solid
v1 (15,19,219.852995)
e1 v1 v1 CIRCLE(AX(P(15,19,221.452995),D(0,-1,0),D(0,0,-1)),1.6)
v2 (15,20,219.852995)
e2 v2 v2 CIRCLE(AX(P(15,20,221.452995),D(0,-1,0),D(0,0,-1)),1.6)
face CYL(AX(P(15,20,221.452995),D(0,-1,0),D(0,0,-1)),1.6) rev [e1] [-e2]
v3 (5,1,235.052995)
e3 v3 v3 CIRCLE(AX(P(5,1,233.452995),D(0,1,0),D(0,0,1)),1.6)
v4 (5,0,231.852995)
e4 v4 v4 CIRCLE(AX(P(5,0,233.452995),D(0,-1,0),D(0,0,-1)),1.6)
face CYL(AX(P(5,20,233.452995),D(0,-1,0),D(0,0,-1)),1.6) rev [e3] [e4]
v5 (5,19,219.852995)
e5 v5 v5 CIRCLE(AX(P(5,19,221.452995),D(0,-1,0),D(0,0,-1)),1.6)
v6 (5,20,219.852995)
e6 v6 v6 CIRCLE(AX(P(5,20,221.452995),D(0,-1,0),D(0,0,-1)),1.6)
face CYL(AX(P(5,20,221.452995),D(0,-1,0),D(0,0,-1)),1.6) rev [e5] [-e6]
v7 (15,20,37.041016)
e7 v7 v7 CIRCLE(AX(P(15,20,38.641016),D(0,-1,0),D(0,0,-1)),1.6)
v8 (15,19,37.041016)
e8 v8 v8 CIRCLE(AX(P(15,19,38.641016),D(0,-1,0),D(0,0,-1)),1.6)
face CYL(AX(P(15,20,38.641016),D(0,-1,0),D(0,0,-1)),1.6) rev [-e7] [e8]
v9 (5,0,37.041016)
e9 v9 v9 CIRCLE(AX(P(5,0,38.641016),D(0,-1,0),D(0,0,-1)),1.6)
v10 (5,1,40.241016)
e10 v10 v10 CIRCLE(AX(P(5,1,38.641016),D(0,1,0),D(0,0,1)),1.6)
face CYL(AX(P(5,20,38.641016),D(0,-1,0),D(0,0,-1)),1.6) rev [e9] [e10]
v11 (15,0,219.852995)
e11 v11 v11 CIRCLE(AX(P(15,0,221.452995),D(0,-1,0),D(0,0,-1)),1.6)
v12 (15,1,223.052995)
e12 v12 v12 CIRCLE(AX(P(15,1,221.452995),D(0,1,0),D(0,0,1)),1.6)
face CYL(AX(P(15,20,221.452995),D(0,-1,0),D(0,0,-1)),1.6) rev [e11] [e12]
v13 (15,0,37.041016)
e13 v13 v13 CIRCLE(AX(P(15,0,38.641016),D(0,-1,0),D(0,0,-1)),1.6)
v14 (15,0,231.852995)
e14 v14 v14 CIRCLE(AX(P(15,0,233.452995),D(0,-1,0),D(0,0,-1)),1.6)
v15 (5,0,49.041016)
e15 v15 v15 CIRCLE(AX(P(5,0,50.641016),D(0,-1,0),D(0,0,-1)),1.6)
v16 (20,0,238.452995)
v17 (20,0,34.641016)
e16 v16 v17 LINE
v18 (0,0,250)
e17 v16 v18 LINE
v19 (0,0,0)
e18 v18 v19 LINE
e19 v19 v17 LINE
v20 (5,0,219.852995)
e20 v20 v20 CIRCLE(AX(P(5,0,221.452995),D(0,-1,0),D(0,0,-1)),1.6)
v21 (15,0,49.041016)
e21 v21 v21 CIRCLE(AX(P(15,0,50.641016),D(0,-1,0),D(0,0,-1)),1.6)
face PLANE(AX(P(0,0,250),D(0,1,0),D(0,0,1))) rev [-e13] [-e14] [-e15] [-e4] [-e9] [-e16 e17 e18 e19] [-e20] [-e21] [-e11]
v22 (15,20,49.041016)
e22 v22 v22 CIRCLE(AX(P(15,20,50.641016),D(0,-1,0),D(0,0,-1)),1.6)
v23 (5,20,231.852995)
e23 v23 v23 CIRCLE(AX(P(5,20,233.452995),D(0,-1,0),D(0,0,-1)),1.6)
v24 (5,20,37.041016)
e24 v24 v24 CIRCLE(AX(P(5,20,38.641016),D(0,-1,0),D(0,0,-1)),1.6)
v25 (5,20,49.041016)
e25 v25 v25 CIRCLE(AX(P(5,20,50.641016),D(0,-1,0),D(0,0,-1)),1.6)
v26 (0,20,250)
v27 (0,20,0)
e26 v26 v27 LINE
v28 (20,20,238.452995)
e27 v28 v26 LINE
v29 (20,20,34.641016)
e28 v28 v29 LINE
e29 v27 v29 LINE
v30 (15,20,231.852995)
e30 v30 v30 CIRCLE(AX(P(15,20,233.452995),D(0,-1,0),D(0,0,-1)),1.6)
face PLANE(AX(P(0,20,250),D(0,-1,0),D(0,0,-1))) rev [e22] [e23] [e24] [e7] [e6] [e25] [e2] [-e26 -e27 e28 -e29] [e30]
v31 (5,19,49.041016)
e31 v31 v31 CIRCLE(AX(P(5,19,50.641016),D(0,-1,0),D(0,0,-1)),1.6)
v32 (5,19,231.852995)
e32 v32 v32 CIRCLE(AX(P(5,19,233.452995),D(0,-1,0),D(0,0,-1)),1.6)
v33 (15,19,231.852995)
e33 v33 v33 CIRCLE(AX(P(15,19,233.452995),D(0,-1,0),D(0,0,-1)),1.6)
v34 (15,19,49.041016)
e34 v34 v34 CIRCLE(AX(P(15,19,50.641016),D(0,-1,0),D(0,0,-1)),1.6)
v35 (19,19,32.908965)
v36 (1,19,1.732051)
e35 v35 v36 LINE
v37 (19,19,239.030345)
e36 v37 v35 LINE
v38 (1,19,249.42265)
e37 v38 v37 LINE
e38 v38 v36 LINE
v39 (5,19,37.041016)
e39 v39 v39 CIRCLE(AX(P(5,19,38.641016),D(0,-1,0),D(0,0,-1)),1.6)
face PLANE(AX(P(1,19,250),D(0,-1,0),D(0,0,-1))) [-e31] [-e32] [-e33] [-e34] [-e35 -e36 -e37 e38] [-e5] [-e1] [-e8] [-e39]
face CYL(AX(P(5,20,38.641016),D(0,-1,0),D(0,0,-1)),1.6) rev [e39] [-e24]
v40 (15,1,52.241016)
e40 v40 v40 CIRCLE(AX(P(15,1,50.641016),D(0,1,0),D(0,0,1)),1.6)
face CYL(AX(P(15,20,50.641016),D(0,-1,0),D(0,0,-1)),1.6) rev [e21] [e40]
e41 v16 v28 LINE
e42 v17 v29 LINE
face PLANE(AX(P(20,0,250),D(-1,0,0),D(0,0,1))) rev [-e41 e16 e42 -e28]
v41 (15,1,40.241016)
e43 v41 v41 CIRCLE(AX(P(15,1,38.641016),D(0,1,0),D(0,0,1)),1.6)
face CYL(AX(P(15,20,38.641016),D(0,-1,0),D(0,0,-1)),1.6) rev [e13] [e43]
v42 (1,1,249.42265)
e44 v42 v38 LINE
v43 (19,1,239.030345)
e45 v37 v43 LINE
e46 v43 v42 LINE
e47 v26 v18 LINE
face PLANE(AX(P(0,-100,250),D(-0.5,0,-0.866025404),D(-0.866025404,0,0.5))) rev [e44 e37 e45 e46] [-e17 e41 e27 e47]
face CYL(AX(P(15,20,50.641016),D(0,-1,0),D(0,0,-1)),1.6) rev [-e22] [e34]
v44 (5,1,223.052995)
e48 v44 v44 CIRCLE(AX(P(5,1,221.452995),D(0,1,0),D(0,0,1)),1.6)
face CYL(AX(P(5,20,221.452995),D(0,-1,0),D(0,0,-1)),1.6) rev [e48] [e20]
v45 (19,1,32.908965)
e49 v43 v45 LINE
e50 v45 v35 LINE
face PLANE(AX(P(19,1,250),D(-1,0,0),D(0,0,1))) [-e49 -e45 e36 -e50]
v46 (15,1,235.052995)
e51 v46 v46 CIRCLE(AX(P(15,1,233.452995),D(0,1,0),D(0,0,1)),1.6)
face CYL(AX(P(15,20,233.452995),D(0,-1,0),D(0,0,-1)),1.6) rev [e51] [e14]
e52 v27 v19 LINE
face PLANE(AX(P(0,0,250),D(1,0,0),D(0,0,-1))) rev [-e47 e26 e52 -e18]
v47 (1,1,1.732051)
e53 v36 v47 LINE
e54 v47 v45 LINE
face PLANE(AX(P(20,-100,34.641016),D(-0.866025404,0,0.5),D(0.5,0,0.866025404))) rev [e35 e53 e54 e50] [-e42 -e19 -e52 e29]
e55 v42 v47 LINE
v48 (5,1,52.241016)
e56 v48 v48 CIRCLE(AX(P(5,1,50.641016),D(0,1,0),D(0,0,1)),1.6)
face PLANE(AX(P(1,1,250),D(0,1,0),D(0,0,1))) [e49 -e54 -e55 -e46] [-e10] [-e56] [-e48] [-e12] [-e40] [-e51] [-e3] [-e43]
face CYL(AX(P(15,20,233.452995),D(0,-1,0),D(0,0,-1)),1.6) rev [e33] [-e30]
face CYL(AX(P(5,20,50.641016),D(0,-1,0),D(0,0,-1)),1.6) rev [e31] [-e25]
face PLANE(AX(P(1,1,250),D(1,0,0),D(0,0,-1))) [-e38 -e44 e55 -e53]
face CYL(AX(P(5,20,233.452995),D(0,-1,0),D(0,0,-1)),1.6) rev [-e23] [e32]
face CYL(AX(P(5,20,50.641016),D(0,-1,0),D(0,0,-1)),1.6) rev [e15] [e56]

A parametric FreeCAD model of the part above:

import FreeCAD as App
import Part
import Sketcher
Q = App.Units.Quantity

doc = App.newDocument("Part")
body = doc.addObject("PartDesign::Body", "Body")

sketch1 = body.newObject("Sketcher::SketchObject", "Sketch")
sketch1.AttachmentSupport = (doc.getObject("XY_Plane"), [""])
sketch1.MapMode = "FlatFace"
sketch1.addGeometry([
    Part.LineSegment(App.Vector(0, 20, 0), App.Vector(0, 0, 0)),
    Part.LineSegment(App.Vector(0, 0, 0), App.Vector(20, 0, 0)),
    Part.LineSegment(App.Vector(20, 0, 0), App.Vector(20, 20, 0)),
    Part.LineSegment(App.Vector(20, 20, 0), App.Vector(0, 20, 0)),
    Part.LineSegment(App.Vector(19, 1, 0), App.Vector(1, 1, 0)),
    Part.LineSegment(App.Vector(1, 1, 0), App.Vector(1, 19, 0)),
    Part.LineSegment(App.Vector(1, 19, 0), App.Vector(19, 19, 0)),
    Part.LineSegment(App.Vector(19, 19, 0), App.Vector(19, 1, 0)),
], False)
sketch1.addConstraint([
    Sketcher.Constraint("Coincident", 0, 2, 1, 1),
    Sketcher.Constraint("Coincident", 1, 2, 2, 1),
    Sketcher.Constraint("Coincident", 2, 2, 3, 1),
    Sketcher.Constraint("Coincident", 3, 2, 0, 1),
    Sketcher.Constraint("Coincident", 4, 2, 5, 1),
    Sketcher.Constraint("Coincident", 5, 2, 6, 1),
    Sketcher.Constraint("Coincident", 6, 2, 7, 1),
    Sketcher.Constraint("Coincident", 7, 2, 4, 1),
    Sketcher.Constraint("Vertical", 0),
    Sketcher.Constraint("Horizontal", 1),
    Sketcher.Constraint("Vertical", 2),
    Sketcher.Constraint("Horizontal", 3),
    Sketcher.Constraint("Horizontal", 4),
    Sketcher.Constraint("Vertical", 5),
    Sketcher.Constraint("Horizontal", 6),
    Sketcher.Constraint("Vertical", 7),
    Sketcher.Constraint("Coincident", 0, 2, -1, 1),
    Sketcher.Constraint("Equal", 3, 0),
    Sketcher.Constraint("Equal", 6, 5),
    Sketcher.Constraint("DistanceX", 1, 1, 1, 2, Q("20 mm")),
    Sketcher.Constraint("DistanceX", 4, 2, 4, 1, Q("18 mm")),
    Sketcher.Constraint("DistanceX", -1, 1, 4, 2, Q("1 mm")),
    Sketcher.Constraint("DistanceY", -1, 1, 4, 2, Q("1 mm")),
])
pad1 = body.newObject("PartDesign::Pad", "Pad")
pad1.Profile = sketch1
pad1.Length = 250

sketch2 = body.newObject("Sketcher::SketchObject", "Sketch001")
sketch2.AttachmentSupport = (doc.getObject("XZ_Plane"), [""])
sketch2.MapMode = "FlatFace"
sketch2.AttachmentOffset = App.Placement(App.Vector(0, 0, -20), App.Rotation())
sketch2.addGeometry([
    Part.LineSegment(App.Vector(20, 0, 0), App.Vector(0, 0, 0)),
    Part.LineSegment(App.Vector(0, 0, 0), App.Vector(20, 35, 0)),
    Part.LineSegment(App.Vector(20, 35, 0), App.Vector(20, 0, 0)),
    Part.LineSegment(App.Vector(20, 238, 0), App.Vector(0, 250, 0)),
    Part.LineSegment(App.Vector(0, 250, 0), App.Vector(20, 250, 0)),
    Part.LineSegment(App.Vector(20, 250, 0), App.Vector(20, 238, 0)),
], False)
sketch2.addConstraint([
    Sketcher.Constraint("Coincident", 0, 2, 1, 1),
    Sketcher.Constraint("Coincident", 1, 2, 2, 1),
    Sketcher.Constraint("Coincident", 2, 2, 0, 1),
    Sketcher.Constraint("Coincident", 3, 2, 4, 1),
    Sketcher.Constraint("Coincident", 4, 2, 5, 1),
    Sketcher.Constraint("Coincident", 5, 2, 3, 1),
    Sketcher.Constraint("Horizontal", 0),
    Sketcher.Constraint("Vertical", 2),
    Sketcher.Constraint("Horizontal", 4),
    Sketcher.Constraint("Vertical", 5),
    Sketcher.Constraint("Coincident", 0, 2, -1, 1),
    Sketcher.Constraint("PointOnObject", 3, 2, -2),
    Sketcher.Constraint("Perpendicular", 1, 3),
    Sketcher.Constraint("Vertical", 2, 2, 4, 2),
    Sketcher.Constraint("DistanceX", 0, 2, 0, 1, Q("20 mm")),
    Sketcher.Constraint("Angle", 1, Q("60 deg")),
    Sketcher.Constraint("DistanceY", -1, 1, 3, 2, Q("250 mm")),
])
pocket1 = body.newObject("PartDesign::Pocket", "Pocket")
pocket1.Profile = sketch2
pocket1.Length = 120
pocket1.Reversed = True

sketch3 = body.newObject("Sketcher::SketchObject", "Sketch002")
sketch3.AttachmentSupport = (doc.getObject("XZ_Plane"), [""])
sketch3.MapMode = "FlatFace"
sketch3.addGeometry([
    Part.Circle(App.Vector(5, 233.5, 0), App.Vector(0, 0, 1), 1.6),
    Part.Circle(App.Vector(15, 233.5, 0), App.Vector(0, 0, 1), 1.6),
    Part.Circle(App.Vector(15, 221.5, 0), App.Vector(0, 0, 1), 1.6),
    Part.Circle(App.Vector(5, 221.5, 0), App.Vector(0, 0, 1), 1.6),
    Part.Circle(App.Vector(15, 38.6, 0), App.Vector(0, 0, 1), 1.6),
    Part.Circle(App.Vector(5, 38.6, 0), App.Vector(0, 0, 1), 1.6),
    Part.Circle(App.Vector(15, 50.6, 0), App.Vector(0, 0, 1), 1.6),
    Part.Circle(App.Vector(5, 50.6, 0), App.Vector(0, 0, 1), 1.6),
], False)
sketch3.addConstraint([
    Sketcher.Constraint("Equal", 0, 1),
    Sketcher.Constraint("Equal", 1, 2),
    Sketcher.Constraint("Equal", 2, 3),
    Sketcher.Constraint("Equal", 3, 4),
    Sketcher.Constraint("Equal", 4, 5),
    Sketcher.Constraint("Equal", 5, 6),
    Sketcher.Constraint("Equal", 6, 7),
    Sketcher.Constraint("Horizontal", 0, 3, 1, 3),
    Sketcher.Constraint("Horizontal", 2, 3, 3, 3),
    Sketcher.Constraint("Horizontal", 4, 3, 5, 3),
    Sketcher.Constraint("Horizontal", 6, 3, 7, 3),
    Sketcher.Constraint("Vertical", 1, 3, 2, 3),
    Sketcher.Constraint("Vertical", 0, 3, 3, 3),
    Sketcher.Constraint("Vertical", 2, 3, 4, 3),
    Sketcher.Constraint("Vertical", 3, 3, 5, 3),
    Sketcher.Constraint("Vertical", 4, 3, 6, 3),
    Sketcher.Constraint("Vertical", 5, 3, 7, 3),
    Sketcher.Constraint("Diameter", 0, Q("3.2 mm")),
    Sketcher.Constraint("DistanceX", -1, 1, 0, 3, Q("5 mm")),
    Sketcher.Constraint("DistanceX", -1, 1, 1, 3, Q("15 mm")),
    Sketcher.Constraint("DistanceY", 2, 3, 1, 3, Q("12 mm")),
    Sketcher.Constraint("DistanceY", 4, 3, 6, 3, Q("12 mm")),
    Sketcher.Constraint("DistanceY", 4, 3, 2, 3, Q("182.811978 mm")),
    Sketcher.Constraint("DistanceY", -1, 1, 0, 3, Q("233.452995 mm")),
])
pocket2 = body.newObject("PartDesign::Pocket", "Pocket001")
pocket2.Profile = sketch3
pocket2.Type = "ThroughAll"

doc.recompute()
